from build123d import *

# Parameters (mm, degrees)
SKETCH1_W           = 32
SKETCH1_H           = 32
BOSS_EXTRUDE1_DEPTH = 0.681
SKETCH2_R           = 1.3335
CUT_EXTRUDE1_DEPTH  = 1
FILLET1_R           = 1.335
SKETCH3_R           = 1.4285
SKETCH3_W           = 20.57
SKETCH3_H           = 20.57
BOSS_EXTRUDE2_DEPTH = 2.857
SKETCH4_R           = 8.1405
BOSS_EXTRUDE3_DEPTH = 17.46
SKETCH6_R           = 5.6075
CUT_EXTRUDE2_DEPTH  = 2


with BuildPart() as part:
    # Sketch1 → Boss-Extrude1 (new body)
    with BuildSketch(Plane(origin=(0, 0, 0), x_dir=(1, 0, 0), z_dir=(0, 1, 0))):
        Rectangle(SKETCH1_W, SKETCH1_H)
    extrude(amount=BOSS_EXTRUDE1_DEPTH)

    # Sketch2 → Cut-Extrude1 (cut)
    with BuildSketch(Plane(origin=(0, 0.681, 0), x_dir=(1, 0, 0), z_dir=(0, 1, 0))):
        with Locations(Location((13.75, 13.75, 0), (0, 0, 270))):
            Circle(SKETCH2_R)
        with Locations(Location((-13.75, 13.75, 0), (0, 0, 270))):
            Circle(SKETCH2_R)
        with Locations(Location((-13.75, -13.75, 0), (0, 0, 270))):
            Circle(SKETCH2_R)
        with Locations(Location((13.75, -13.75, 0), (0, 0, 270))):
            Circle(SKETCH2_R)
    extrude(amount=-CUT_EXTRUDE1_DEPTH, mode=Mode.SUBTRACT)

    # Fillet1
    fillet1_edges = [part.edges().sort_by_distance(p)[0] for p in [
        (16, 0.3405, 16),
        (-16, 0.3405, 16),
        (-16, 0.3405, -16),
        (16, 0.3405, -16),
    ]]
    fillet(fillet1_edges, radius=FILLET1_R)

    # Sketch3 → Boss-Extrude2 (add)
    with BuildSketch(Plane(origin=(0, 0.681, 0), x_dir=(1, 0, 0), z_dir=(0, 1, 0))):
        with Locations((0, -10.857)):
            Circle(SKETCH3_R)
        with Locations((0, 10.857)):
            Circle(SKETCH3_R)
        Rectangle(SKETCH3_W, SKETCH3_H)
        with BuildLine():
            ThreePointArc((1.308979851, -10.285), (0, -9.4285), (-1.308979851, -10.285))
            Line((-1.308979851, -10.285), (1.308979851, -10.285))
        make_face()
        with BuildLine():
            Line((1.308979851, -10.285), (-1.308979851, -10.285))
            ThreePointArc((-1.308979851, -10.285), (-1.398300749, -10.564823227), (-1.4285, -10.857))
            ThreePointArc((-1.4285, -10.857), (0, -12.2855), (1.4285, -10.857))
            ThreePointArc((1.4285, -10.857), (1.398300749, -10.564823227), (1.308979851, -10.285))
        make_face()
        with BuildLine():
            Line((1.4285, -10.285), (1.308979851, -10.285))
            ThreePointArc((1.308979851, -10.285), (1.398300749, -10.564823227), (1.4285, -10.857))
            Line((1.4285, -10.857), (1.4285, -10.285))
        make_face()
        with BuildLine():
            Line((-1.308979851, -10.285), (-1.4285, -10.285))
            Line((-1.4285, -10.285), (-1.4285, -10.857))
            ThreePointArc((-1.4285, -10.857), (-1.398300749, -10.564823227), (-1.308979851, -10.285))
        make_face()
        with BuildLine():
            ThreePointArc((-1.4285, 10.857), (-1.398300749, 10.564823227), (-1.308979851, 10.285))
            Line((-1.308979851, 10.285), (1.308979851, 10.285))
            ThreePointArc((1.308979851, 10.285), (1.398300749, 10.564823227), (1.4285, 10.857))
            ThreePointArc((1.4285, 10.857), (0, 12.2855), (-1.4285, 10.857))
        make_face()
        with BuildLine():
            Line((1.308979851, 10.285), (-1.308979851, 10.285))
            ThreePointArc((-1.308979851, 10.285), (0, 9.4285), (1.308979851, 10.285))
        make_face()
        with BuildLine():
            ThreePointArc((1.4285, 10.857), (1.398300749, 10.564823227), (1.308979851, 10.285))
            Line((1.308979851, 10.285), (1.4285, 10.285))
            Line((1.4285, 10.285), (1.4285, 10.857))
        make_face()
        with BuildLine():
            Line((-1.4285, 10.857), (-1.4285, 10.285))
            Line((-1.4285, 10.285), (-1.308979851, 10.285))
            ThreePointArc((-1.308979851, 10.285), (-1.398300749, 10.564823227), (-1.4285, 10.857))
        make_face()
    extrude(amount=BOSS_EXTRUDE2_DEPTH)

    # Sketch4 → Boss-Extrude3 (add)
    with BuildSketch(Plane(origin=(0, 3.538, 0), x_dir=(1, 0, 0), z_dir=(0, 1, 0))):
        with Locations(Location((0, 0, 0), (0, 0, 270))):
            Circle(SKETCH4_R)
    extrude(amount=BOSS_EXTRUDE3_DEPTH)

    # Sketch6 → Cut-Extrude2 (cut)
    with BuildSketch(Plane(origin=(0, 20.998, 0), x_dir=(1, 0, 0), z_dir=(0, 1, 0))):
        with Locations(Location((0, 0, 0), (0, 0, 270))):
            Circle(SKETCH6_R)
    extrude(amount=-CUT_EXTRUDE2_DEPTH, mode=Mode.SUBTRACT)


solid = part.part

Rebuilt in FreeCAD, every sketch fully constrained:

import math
import FreeCAD as App
import Part
import Sketcher


def edges_at(feature, points):
    """Names of the edges that pass closest to the given points."""
    edges = feature.Shape.Edges
    near = lambda p: min(range(len(edges)), key=lambda i: edges[i].distToShape(Part.Vertex(*p))[0])
    return sorted({f"Edge{near(p) + 1}" for p in points})

doc = App.newDocument("Part")
body = doc.addObject("PartDesign::Body", "Body")

# Sketch on XZ plane
sketch1 = doc.addObject("Sketcher::SketchObject", "Sketch")
body.addObject(sketch1)
sketch1.AttachmentSupport = (doc.XZ_Plane, [""])
sketch1.MapMode = "FlatFace"
sketch1.addGeometry([
    Part.LineSegment(App.Vector(-16, -16, 0), App.Vector(-16, 16, 0)),
    Part.LineSegment(App.Vector(-16, 16, 0), App.Vector(16, 16, 0)),
    Part.LineSegment(App.Vector(16, 16, 0), App.Vector(16, -16, 0)),
    Part.LineSegment(App.Vector(16, -16, 0), App.Vector(-16, -16, 0)),
], False)
sketch1.addConstraint([
    Sketcher.Constraint("Coincident", 0, 2, 1, 1),
    Sketcher.Constraint("Coincident", 1, 2, 2, 1),
    Sketcher.Constraint("Coincident", 2, 2, 3, 1),
    Sketcher.Constraint("Coincident", 3, 2, 0, 1),
    Sketcher.Constraint("Vertical", 0),
    Sketcher.Constraint("Horizontal", 1),
    Sketcher.Constraint("Vertical", 2),
    Sketcher.Constraint("Horizontal", 3),
    Sketcher.Constraint("Symmetric", 0, 2, 2, 2, -1, 1),
    Sketcher.Constraint("Equal", 3, 0),
    Sketcher.Constraint("DistanceX", 1, 1, 1, 2, 32.0),
])
pad1 = doc.addObject("PartDesign::Pad", "Pad")
body.addObject(pad1)
pad1.Profile = sketch1
pad1.Length = 0.681
pad1.Reversed = True

# Sketch on XZ plane
sketch2 = doc.addObject("Sketcher::SketchObject", "Sketch001")
body.addObject(sketch2)
sketch2.AttachmentSupport = (doc.XZ_Plane, [""])
sketch2.MapMode = "FlatFace"
sketch2.AttachmentOffset = App.Placement(App.Vector(0, 0, -0.681), App.Rotation())
sketch2.addGeometry([
    Part.Circle(App.Vector(13.8, -13.8, 0), App.Vector(0, 0, 1), 1.3),
    Part.Circle(App.Vector(-13.8, -13.8, 0), App.Vector(0, 0, 1), 1.3),
    Part.Circle(App.Vector(-13.8, 13.8, 0), App.Vector(0, 0, 1), 1.3),
    Part.Circle(App.Vector(13.8, 13.8, 0), App.Vector(0, 0, 1), 1.3),
], False)
sketch2.addConstraint([
    Sketcher.Constraint("Equal", 0, 1),
    Sketcher.Constraint("Equal", 1, 2),
    Sketcher.Constraint("Equal", 2, 3),
    Sketcher.Constraint("Symmetric", 0, 3, 2, 3, -1, 1),
    Sketcher.Constraint("Symmetric", 1, 3, 3, 3, -1, 1),
    Sketcher.Constraint("Symmetric", 0, 3, 1, 3, -2),
    Sketcher.Constraint("Diameter", 0, 2.667),
    Sketcher.Constraint("DistanceX", 1, 3, 0, 3, 27.5),
    Sketcher.Constraint("DistanceY", 1, 3, 2, 3, 27.5),
])
pocket1 = doc.addObject("PartDesign::Pocket", "Pocket")
body.addObject(pocket1)
pocket1.Profile = sketch2
pocket1.Length = 1
pocket1.Reversed = True
doc.recompute()

fillet = doc.addObject("PartDesign::Fillet", "Fillet")
body.addObject(fillet)
fillet.Base = (pocket1, edges_at(pocket1, [
    (16, 0.341, 16),
    (-16, 0.341, 16),
    (-16, 0.341, -16),
    (16, 0.341, -16),
]))
fillet.Radius = 1.335

# Sketch on XZ plane
sketch3 = doc.addObject("Sketcher::SketchObject", "Sketch002")
body.addObject(sketch3)
sketch3.AttachmentSupport = (doc.XZ_Plane, [""])
sketch3.MapMode = "FlatFace"
sketch3.AttachmentOffset = App.Placement(App.Vector(0, 0, -0.681), App.Rotation())
sketch3.addGeometry([
    Part.LineSegment(App.Vector(-10.3, -10.3, 0), App.Vector(-10.3, 10.3, 0)),  # 0
    Part.LineSegment(App.Vector(-10.3, 10.3, 0), App.Vector(-1.4, 10.3, 0)),  # 1
    Part.LineSegment(App.Vector(-1.4, 10.3, 0), App.Vector(-1.4, 10.9, 0)),  # 2
    Part.ArcOfCircle(Part.Circle(App.Vector(0, 10.9, 0), App.Vector(0, 0, 1), 1.4), math.radians(0), math.radians(180)),  # 3
    Part.LineSegment(App.Vector(1.4, 10.9, 0), App.Vector(1.4, 10.3, 0)),  # 4
    Part.LineSegment(App.Vector(1.4, 10.3, 0), App.Vector(10.3, 10.3, 0)),  # 5
    Part.LineSegment(App.Vector(10.3, 10.3, 0), App.Vector(10.3, -10.3, 0)),  # 6
    Part.LineSegment(App.Vector(10.3, -10.3, 0), App.Vector(1.4, -10.3, 0)),  # 7
    Part.LineSegment(App.Vector(1.4, -10.3, 0), App.Vector(1.4, -10.9, 0)),  # 8
    Part.ArcOfCircle(Part.Circle(App.Vector(0, -10.9, 0), App.Vector(0, 0, 1), 1.4), math.radians(180), math.radians(360)),  # 9
    Part.LineSegment(App.Vector(-1.4, -10.9, 0), App.Vector(-1.4, -10.3, 0)),  # 10
    Part.LineSegment(App.Vector(-1.4, -10.3, 0), App.Vector(-10.3, -10.3, 0)),  # 11
], False)
sketch3.addConstraint([
    Sketcher.Constraint("Coincident", 0, 2, 1, 1),
    Sketcher.Constraint("Coincident", 1, 2, 2, 1),
    Sketcher.Constraint("Tangent", 2, 2, 3, 2),
    Sketcher.Constraint("Tangent", 3, 1, 4, 1),
    Sketcher.Constraint("Coincident", 4, 2, 5, 1),
    Sketcher.Constraint("Coincident", 5, 2, 6, 1),
    Sketcher.Constraint("Coincident", 6, 2, 7, 1),
    Sketcher.Constraint("Coincident", 7, 2, 8, 1),
    Sketcher.Constraint("Tangent", 8, 2, 9, 2),
    Sketcher.Constraint("Tangent", 9, 1, 10, 1),
    Sketcher.Constraint("Coincident", 10, 2, 11, 1),
    Sketcher.Constraint("Coincident", 11, 2, 0, 1),
    Sketcher.Constraint("Vertical", 0),
    Sketcher.Constraint("Horizontal", 1),
    Sketcher.Constraint("Vertical", 2),
    Sketcher.Constraint("Vertical", 4),
    Sketcher.Constraint("Horizontal", 5),
    Sketcher.Constraint("Vertical", 6),
    Sketcher.Constraint("Horizontal", 7),
    Sketcher.Constraint("Vertical", 8),
    Sketcher.Constraint("Vertical", 10),
    Sketcher.Constraint("Horizontal", 11),
    Sketcher.Constraint("Equal", 3, 9),
    Sketcher.Constraint("Symmetric", 3, 3, 9, 3, -1, 1),
    Sketcher.Constraint("Symmetric", 0, 2, 6, 2, -1, 1),
    Sketcher.Constraint("Symmetric", 1, 2, 4, 2, -2),
    Sketcher.Constraint("Horizontal", 7, 2, 10, 2),
    Sketcher.Constraint("DistanceY", 0, 1, 0, 2, 20.57),
    Sketcher.Constraint("Radius", 3, 1.4285),
    Sketcher.Constraint("DistanceY", 2, 1, 2, 2, 0.572),
    Sketcher.Constraint("DistanceX", 1, 1, 1, 2, 8.8565),
])
pad2 = doc.addObject("PartDesign::Pad", "Pad001")
body.addObject(pad2)
pad2.Profile = sketch3
pad2.Length = 2.857
pad2.Reversed = True

# Sketch on XZ plane
sketch4 = doc.addObject("Sketcher::SketchObject", "Sketch003")
body.addObject(sketch4)
sketch4.AttachmentSupport = (doc.XZ_Plane, [""])
sketch4.MapMode = "FlatFace"
sketch4.AttachmentOffset = App.Placement(App.Vector(0, 0, -3.538), App.Rotation())
sketch4.addGeometry(Part.Circle(App.Vector(0, 0, 0), App.Vector(0, 0, 1), 8), False)
sketch4.addConstraint([
    Sketcher.Constraint("Coincident", 0, 3, -1, 1),
    Sketcher.Constraint("Diameter", 0, 16.281),
])
pad3 = doc.addObject("PartDesign::Pad", "Pad002")
body.addObject(pad3)
pad3.Profile = sketch4
pad3.Length = 17.46
pad3.Reversed = True

# Sketch on XZ plane
sketch5 = doc.addObject("Sketcher::SketchObject", "Sketch004")
body.addObject(sketch5)
sketch5.AttachmentSupport = (doc.XZ_Plane, [""])
sketch5.MapMode = "FlatFace"
sketch5.AttachmentOffset = App.Placement(App.Vector(0, 0, -20.998), App.Rotation())
sketch5.addGeometry(Part.Circle(App.Vector(0, 0, 0), App.Vector(0, 0, 1), 6), False)
sketch5.addConstraint([
    Sketcher.Constraint("Coincident", 0, 3, -1, 1),
    Sketcher.Constraint("Diameter", 0, 11.215),
])
pocket2 = doc.addObject("PartDesign::Pocket", "Pocket001")
body.addObject(pocket2)
pocket2.Profile = sketch5
pocket2.Length = 2
pocket2.Reversed = True

doc.recompute()
